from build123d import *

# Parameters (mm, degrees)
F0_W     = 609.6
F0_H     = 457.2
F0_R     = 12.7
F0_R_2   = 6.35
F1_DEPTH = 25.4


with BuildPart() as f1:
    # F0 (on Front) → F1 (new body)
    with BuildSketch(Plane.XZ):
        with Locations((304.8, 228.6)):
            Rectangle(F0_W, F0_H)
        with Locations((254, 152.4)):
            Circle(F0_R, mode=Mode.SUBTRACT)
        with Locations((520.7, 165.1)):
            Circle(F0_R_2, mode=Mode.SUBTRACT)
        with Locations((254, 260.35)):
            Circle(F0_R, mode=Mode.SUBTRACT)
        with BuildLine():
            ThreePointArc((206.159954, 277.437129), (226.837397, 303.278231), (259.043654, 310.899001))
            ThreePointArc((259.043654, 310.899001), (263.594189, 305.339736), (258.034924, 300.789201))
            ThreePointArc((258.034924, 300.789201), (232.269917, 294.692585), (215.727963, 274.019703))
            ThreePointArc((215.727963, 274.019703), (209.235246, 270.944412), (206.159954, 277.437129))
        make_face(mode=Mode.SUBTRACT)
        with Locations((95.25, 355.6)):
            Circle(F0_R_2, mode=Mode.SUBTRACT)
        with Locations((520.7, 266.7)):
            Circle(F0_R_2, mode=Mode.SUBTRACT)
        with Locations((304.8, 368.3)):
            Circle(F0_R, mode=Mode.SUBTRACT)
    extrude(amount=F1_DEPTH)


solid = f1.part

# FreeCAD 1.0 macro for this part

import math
import FreeCAD as App
import Part
import Sketcher
Q = App.Units.Quantity


def add_polygon(sketch, points):
    """Adds a closed chain of lines whose ends are joined by coincident constraints."""
    first, n = sketch.GeometryCount, len(points)
    for a, b in zip(points, points[1:] + points[:1]):
        sketch.addGeometry(Part.LineSegment(App.Vector(*a, 0), App.Vector(*b, 0)), False)
    for i in range(n):
        sketch.addConstraint(Sketcher.Constraint("Coincident", first + i, 2, first + (i + 1) % n, 1))

doc = App.newDocument("Part")
params = doc.addObject("Spreadsheet::Sheet", "Params")
for row, (alias, value) in enumerate([
    ("sketch1_diameter", "1 in"),
    ("sketch1_radius", "1.9999999 in"),
    ("sketch1_diameter2", "0.5 in"),
    ("sketch1_radius2", "0.2 in"),
    ("sketch1_width", "24 in"),
    ("pad1_length", "1 in"),
], start=1):
    params.set(f"A{row}", alias)
    params.set(f"B{row}", "=" + value)
    params.setAlias(f"B{row}", alias)

body = doc.addObject("PartDesign::Body", "Body")

sketch1 = body.newObject("Sketcher::SketchObject", "Sketch")
sketch1.AttachmentSupport = (doc.getObject("XZ_Plane"), [""])
sketch1.MapMode = "FlatFace"
add_polygon(sketch1, [(0, 457.2), (0, 0), (609.6, 0), (609.6, 457.2)])
sketch1.addGeometry(Part.Circle(App.Vector(254, 152.4, 0), App.Vector(0, 0, 1), 12.7), False)
sketch1.addGeometry(Part.Circle(App.Vector(520.7, 165.1, 0), App.Vector(0, 0, 1), 6.35), False)
sketch1.addGeometry(Part.Circle(App.Vector(254, 260.35, 0), App.Vector(0, 0, 1), 12.7), False)
sketch1.addGeometry(Part.ArcOfCircle(Part.Circle(App.Vector(210.943959, 275.728417, 0), App.Vector(0, 0, 1), 5.08), math.radians(160.344697), math.radians(340.344682)), False)
sketch1.addGeometry(Part.ArcOfCircle(Part.Circle(App.Vector(253.999998, 260.350002, 0), App.Vector(0, 0, 1), 50.799998), math.radians(84.302026), math.radians(160.344692)), False)
sketch1.addGeometry(Part.ArcOfCircle(Part.Circle(App.Vector(258.539289, 305.844101, 0), App.Vector(0, 0, 1), 5.08), math.radians(-95.697968), math.radians(84.302032)), False)
sketch1.addGeometry(Part.ArcOfCircle(Part.Circle(App.Vector(253.999998, 260.350003, 0), App.Vector(0, 0, 1), 40.639997), math.radians(84.302024), math.radians(160.344694)), False)
sketch1.addGeometry(Part.Circle(App.Vector(95.25, 355.6, 0), App.Vector(0, 0, 1), 6.35), False)
sketch1.addGeometry(Part.Circle(App.Vector(304.8, 368.3, 0), App.Vector(0, 0, 1), 12.7), False)
sketch1.addGeometry(Part.Circle(App.Vector(520.7, 266.7, 0), App.Vector(0, 0, 1), 6.35), False)
sketch1.addConstraint(Sketcher.Constraint("Tangent", 7, 1, 8, 2))
sketch1.addConstraint(Sketcher.Constraint("Tangent", 8, 1, 9, 2))
sketch1.addConstraint(Sketcher.Constraint("Tangent", 9, 1, 10, 1))
sketch1.addConstraint(Sketcher.Constraint("Tangent", 10, 2, 7, 2))
sketch1.addConstraint(Sketcher.Constraint("Vertical", 0))
sketch1.addConstraint(Sketcher.Constraint("Horizontal", 1))
sketch1.addConstraint(Sketcher.Constraint("Vertical", 2))
sketch1.addConstraint(Sketcher.Constraint("Horizontal", 3))
sketch1.addConstraint(Sketcher.Constraint("Coincident", 0, 2, -1, 1))
sketch1.addConstraint(Sketcher.Constraint("Coincident", 8, 3, 6, 3))
sketch1.addConstraint(Sketcher.Constraint("Coincident", 10, 3, 6, 3))
sketch1.addConstraint(Sketcher.Constraint("Equal", 4, 6))
sketch1.addConstraint(Sketcher.Constraint("Equal", 5, 11))
sketch1.addConstraint(Sketcher.Constraint("Equal", 6, 12))
sketch1.addConstraint(Sketcher.Constraint("Equal", 11, 13))
sketch1.addConstraint(Sketcher.Constraint("Vertical", 4, 3, 6, 3))
sketch1.addConstraint(Sketcher.Constraint("Vertical", 5, 3, 13, 3))
sketch1.addConstraint(Sketcher.Constraint("Diameter", 4, Q("1 in")))
sketch1.addConstraint(Sketcher.Constraint("Radius", 8, Q("1.9999999 in")))
sketch1.addConstraint(Sketcher.Constraint("Diameter", 5, Q("0.5 in")))
sketch1.addConstraint(Sketcher.Constraint("Radius", 7, Q("0.2 in")))
sketch1.addConstraint(Sketcher.Constraint("DistanceX", 1, 1, 1, 2, Q("24 in")))
sketch1.addConstraint(Sketcher.Constraint("DistanceY", 0, 2, 0, 1, Q("18 in")))
sketch1.addConstraint(Sketcher.Constraint("DistanceX", -1, 1, 4, 3, Q("10 in")))
sketch1.addConstraint(Sketcher.Constraint("DistanceY", -1, 1, 4, 3, Q("6 in")))
sketch1.addConstraint(Sketcher.Constraint("DistanceY", -1, 1, 11, 3, Q("14 in")))
sketch1.addConstraint(Sketcher.Constraint("DistanceX", -1, 1, 12, 3, Q("12 in")))
sketch1.addConstraint(Sketcher.Constraint("DistanceY", 5, 3, 13, 3, Q("4 in")))
sketch1.addConstraint(Sketcher.Constraint("DistanceY", 13, 3, 12, 3, Q("4 in")))
sketch1.addConstraint(Sketcher.Constraint("DistanceX", -1, 1, 5, 3, Q("20.5 in")))
sketch1.addConstraint(Sketcher.Constraint("DistanceY", -1, 1, 5, 3, Q("6.5 in")))
sketch1.addConstraint(Sketcher.Constraint("DistanceY", -1, 1, 6, 3, Q("10.25 in")))
sketch1.addConstraint(Sketcher.Constraint("DistanceX", -1, 1, 11, 3, Q("3.75 in")))
sketch1.addConstraint(Sketcher.Constraint("DistanceY", -1, 1, 9, 3, Q("305.844101 mm")))
sketch1.addConstraint(Sketcher.Constraint("DistanceY", 10, 3, 10, 2, Q("13.6697 mm")))
sketch1.setExpression("Constraints[21]", "Params.sketch1_diameter")
sketch1.setExpression("Constraints[22]", "Params.sketch1_radius")
sketch1.setExpression("Constraints[23]", "Params.sketch1_diameter2")
sketch1.setExpression("Constraints[24]", "Params.sketch1_radius2")
sketch1.setExpression("Constraints[25]", "Params.sketch1_width")
pad1 = body.newObject("PartDesign::Pad", "Pad")
pad1.Profile = sketch1
pad1.setExpression("Length", "Params.pad1_length")

doc.recompute()
